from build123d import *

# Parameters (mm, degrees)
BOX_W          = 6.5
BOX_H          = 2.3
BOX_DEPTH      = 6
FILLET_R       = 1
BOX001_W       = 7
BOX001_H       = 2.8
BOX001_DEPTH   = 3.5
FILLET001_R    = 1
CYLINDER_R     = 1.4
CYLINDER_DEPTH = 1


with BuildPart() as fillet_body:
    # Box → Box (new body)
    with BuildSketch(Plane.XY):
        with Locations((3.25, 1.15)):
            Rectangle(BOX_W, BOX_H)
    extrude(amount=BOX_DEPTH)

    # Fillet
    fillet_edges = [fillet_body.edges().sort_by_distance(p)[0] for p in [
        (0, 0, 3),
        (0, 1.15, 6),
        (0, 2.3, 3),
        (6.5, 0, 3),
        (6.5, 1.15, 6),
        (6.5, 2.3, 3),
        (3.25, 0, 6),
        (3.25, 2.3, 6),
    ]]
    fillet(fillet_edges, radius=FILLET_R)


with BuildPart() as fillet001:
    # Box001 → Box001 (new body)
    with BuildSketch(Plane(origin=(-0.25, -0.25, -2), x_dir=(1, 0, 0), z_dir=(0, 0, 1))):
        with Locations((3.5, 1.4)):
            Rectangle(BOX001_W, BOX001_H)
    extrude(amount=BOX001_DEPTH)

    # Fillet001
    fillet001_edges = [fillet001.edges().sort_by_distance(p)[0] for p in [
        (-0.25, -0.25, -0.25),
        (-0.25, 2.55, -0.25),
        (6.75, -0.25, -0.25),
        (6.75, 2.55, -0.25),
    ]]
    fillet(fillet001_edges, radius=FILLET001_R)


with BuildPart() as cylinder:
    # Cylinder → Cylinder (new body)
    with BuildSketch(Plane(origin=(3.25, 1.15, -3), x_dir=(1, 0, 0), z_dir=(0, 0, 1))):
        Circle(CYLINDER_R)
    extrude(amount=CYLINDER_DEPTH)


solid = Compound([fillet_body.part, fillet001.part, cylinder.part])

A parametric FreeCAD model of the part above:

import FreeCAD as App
import Part
import Sketcher
from FreeCAD import Vector


def edges_at(feature, points):
    """Names of the edges that pass closest to the given points."""
    edges = feature.Shape.Edges
    near = lambda p: min(range(len(edges)), key=lambda i: edges[i].distToShape(Part.Vertex(*p))[0])
    return sorted({f"Edge{near(p) + 1}" for p in points})


def add_polygon(sketch, points):
    """Adds a closed chain of lines whose ends are joined by coincident constraints."""
    first, n = sketch.GeometryCount, len(points)
    for a, b in zip(points, points[1:] + points[:1]):
        sketch.addGeometry(Part.LineSegment(App.Vector(*a, 0), App.Vector(*b, 0)), False)
    for i in range(n):
        sketch.addConstraint(Sketcher.Constraint("Coincident", first + i, 2, first + (i + 1) % n, 1))

doc = App.newDocument("Part")
body = doc.addObject("PartDesign::Body", "Body")

# Sketch on XY plane
sketch1 = doc.addObject("Sketcher::SketchObject", "Sketch")
body.addObject(sketch1)
sketch1.AttachmentSupport = (doc.XY_Plane, [""])
sketch1.MapMode = "FlatFace"
add_polygon(sketch1, [(0, 2.3), (0, 0), (6.5, 0), (6.5, 2.3)])  # lines 0-3
sketch1.addConstraint([
    Sketcher.Constraint("Vertical", 0),
    Sketcher.Constraint("Horizontal", 1),
    Sketcher.Constraint("Vertical", 2),
    Sketcher.Constraint("Horizontal", 3),
    Sketcher.Constraint("Coincident", 0, 2, -1, 1),
    Sketcher.Constraint("DistanceX", 1, 1, 1, 2, 6.5),
    Sketcher.Constraint("DistanceY", 0, 2, 0, 1, 2.3),
])
pad1 = doc.addObject("PartDesign::Pad", "Pad")
body.addObject(pad1)
pad1.Profile = sketch1
pad1.Length = 6
doc.recompute()

fillet = doc.addObject("PartDesign::Fillet", "Fillet")
body.addObject(fillet)
fillet.Base = (pad1, edges_at(pad1, [
    (0, 0, 3),
    (0, 1.15, 6),
    (0, 2.3, 3),
    (6.5, 0, 3),
    (6.5, 1.15, 6),
    (6.5, 2.3, 3),
    (3.25, 0, 6),
    (3.25, 2.3, 6),
]))
fillet.Radius = 1
body2 = doc.addObject("PartDesign::Body", "Body001")

# Sketch on XY plane
sketch2 = doc.addObject("Sketcher::SketchObject", "Sketch001")
body2.addObject(sketch2)
sketch2.AttachmentSupport = (doc.getObject("XY_Plane001"), [""])
sketch2.MapMode = "FlatFace"
sketch2.AttachmentOffset = App.Placement(Vector(0, 0, -2), App.Rotation())
add_polygon(sketch2, [(-0.25, 2.55), (-0.25, -0.25), (6.75, -0.25), (6.75, 2.55)])  # lines 0-3
sketch2.addConstraint([
    Sketcher.Constraint("Vertical", 0),
    Sketcher.Constraint("Horizontal", 1),
    Sketcher.Constraint("Vertical", 2),
    Sketcher.Constraint("Horizontal", 3),
    Sketcher.Constraint("DistanceX", 1, 1, 1, 2, 7.0),
    Sketcher.Constraint("DistanceY", 0, 2, 0, 1, 2.8),
    Sketcher.Constraint("DistanceX", 0, 2, -1, 1, 0.25),
    Sketcher.Constraint("DistanceY", 0, 2, -1, 1, 0.25),
])
pad2 = doc.addObject("PartDesign::Pad", "Pad001")
body2.addObject(pad2)
pad2.Profile = sketch2
pad2.Length = 3.5
doc.recompute()

fillet2 = doc.addObject("PartDesign::Fillet", "Fillet001")
body2.addObject(fillet2)
fillet2.Base = (pad2, edges_at(pad2, [
    (-0.25, -0.25, -0.25),
    (-0.25, 2.55, -0.25),
    (6.75, -0.25, -0.25),
    (6.75, 2.55, -0.25),
]))
fillet2.Radius = 1
body3 = doc.addObject("PartDesign::Body", "Body002")

# Sketch on XY plane
sketch3 = doc.addObject("Sketcher::SketchObject", "Sketch002")
body3.addObject(sketch3)
sketch3.AttachmentSupport = (doc.getObject("XY_Plane002"), [""])
sketch3.MapMode = "FlatFace"
sketch3.AttachmentOffset = App.Placement(Vector(0, 0, -3), App.Rotation())
sketch3.addGeometry(Part.Circle(Vector(3.25, 1.15, 0), Vector(0, 0, 1), 1.4), False)
sketch3.addConstraint([
    Sketcher.Constraint("Diameter", 0, 2.8),
    Sketcher.Constraint("DistanceX", -1, 1, 0, 3, 3.25),
    Sketcher.Constraint("DistanceY", -1, 1, 0, 3, 1.15),
])
pad3 = doc.addObject("PartDesign::Pad", "Pad002")
body3.addObject(pad3)
pad3.Profile = sketch3
pad3.Length = 1

doc.recompute()
